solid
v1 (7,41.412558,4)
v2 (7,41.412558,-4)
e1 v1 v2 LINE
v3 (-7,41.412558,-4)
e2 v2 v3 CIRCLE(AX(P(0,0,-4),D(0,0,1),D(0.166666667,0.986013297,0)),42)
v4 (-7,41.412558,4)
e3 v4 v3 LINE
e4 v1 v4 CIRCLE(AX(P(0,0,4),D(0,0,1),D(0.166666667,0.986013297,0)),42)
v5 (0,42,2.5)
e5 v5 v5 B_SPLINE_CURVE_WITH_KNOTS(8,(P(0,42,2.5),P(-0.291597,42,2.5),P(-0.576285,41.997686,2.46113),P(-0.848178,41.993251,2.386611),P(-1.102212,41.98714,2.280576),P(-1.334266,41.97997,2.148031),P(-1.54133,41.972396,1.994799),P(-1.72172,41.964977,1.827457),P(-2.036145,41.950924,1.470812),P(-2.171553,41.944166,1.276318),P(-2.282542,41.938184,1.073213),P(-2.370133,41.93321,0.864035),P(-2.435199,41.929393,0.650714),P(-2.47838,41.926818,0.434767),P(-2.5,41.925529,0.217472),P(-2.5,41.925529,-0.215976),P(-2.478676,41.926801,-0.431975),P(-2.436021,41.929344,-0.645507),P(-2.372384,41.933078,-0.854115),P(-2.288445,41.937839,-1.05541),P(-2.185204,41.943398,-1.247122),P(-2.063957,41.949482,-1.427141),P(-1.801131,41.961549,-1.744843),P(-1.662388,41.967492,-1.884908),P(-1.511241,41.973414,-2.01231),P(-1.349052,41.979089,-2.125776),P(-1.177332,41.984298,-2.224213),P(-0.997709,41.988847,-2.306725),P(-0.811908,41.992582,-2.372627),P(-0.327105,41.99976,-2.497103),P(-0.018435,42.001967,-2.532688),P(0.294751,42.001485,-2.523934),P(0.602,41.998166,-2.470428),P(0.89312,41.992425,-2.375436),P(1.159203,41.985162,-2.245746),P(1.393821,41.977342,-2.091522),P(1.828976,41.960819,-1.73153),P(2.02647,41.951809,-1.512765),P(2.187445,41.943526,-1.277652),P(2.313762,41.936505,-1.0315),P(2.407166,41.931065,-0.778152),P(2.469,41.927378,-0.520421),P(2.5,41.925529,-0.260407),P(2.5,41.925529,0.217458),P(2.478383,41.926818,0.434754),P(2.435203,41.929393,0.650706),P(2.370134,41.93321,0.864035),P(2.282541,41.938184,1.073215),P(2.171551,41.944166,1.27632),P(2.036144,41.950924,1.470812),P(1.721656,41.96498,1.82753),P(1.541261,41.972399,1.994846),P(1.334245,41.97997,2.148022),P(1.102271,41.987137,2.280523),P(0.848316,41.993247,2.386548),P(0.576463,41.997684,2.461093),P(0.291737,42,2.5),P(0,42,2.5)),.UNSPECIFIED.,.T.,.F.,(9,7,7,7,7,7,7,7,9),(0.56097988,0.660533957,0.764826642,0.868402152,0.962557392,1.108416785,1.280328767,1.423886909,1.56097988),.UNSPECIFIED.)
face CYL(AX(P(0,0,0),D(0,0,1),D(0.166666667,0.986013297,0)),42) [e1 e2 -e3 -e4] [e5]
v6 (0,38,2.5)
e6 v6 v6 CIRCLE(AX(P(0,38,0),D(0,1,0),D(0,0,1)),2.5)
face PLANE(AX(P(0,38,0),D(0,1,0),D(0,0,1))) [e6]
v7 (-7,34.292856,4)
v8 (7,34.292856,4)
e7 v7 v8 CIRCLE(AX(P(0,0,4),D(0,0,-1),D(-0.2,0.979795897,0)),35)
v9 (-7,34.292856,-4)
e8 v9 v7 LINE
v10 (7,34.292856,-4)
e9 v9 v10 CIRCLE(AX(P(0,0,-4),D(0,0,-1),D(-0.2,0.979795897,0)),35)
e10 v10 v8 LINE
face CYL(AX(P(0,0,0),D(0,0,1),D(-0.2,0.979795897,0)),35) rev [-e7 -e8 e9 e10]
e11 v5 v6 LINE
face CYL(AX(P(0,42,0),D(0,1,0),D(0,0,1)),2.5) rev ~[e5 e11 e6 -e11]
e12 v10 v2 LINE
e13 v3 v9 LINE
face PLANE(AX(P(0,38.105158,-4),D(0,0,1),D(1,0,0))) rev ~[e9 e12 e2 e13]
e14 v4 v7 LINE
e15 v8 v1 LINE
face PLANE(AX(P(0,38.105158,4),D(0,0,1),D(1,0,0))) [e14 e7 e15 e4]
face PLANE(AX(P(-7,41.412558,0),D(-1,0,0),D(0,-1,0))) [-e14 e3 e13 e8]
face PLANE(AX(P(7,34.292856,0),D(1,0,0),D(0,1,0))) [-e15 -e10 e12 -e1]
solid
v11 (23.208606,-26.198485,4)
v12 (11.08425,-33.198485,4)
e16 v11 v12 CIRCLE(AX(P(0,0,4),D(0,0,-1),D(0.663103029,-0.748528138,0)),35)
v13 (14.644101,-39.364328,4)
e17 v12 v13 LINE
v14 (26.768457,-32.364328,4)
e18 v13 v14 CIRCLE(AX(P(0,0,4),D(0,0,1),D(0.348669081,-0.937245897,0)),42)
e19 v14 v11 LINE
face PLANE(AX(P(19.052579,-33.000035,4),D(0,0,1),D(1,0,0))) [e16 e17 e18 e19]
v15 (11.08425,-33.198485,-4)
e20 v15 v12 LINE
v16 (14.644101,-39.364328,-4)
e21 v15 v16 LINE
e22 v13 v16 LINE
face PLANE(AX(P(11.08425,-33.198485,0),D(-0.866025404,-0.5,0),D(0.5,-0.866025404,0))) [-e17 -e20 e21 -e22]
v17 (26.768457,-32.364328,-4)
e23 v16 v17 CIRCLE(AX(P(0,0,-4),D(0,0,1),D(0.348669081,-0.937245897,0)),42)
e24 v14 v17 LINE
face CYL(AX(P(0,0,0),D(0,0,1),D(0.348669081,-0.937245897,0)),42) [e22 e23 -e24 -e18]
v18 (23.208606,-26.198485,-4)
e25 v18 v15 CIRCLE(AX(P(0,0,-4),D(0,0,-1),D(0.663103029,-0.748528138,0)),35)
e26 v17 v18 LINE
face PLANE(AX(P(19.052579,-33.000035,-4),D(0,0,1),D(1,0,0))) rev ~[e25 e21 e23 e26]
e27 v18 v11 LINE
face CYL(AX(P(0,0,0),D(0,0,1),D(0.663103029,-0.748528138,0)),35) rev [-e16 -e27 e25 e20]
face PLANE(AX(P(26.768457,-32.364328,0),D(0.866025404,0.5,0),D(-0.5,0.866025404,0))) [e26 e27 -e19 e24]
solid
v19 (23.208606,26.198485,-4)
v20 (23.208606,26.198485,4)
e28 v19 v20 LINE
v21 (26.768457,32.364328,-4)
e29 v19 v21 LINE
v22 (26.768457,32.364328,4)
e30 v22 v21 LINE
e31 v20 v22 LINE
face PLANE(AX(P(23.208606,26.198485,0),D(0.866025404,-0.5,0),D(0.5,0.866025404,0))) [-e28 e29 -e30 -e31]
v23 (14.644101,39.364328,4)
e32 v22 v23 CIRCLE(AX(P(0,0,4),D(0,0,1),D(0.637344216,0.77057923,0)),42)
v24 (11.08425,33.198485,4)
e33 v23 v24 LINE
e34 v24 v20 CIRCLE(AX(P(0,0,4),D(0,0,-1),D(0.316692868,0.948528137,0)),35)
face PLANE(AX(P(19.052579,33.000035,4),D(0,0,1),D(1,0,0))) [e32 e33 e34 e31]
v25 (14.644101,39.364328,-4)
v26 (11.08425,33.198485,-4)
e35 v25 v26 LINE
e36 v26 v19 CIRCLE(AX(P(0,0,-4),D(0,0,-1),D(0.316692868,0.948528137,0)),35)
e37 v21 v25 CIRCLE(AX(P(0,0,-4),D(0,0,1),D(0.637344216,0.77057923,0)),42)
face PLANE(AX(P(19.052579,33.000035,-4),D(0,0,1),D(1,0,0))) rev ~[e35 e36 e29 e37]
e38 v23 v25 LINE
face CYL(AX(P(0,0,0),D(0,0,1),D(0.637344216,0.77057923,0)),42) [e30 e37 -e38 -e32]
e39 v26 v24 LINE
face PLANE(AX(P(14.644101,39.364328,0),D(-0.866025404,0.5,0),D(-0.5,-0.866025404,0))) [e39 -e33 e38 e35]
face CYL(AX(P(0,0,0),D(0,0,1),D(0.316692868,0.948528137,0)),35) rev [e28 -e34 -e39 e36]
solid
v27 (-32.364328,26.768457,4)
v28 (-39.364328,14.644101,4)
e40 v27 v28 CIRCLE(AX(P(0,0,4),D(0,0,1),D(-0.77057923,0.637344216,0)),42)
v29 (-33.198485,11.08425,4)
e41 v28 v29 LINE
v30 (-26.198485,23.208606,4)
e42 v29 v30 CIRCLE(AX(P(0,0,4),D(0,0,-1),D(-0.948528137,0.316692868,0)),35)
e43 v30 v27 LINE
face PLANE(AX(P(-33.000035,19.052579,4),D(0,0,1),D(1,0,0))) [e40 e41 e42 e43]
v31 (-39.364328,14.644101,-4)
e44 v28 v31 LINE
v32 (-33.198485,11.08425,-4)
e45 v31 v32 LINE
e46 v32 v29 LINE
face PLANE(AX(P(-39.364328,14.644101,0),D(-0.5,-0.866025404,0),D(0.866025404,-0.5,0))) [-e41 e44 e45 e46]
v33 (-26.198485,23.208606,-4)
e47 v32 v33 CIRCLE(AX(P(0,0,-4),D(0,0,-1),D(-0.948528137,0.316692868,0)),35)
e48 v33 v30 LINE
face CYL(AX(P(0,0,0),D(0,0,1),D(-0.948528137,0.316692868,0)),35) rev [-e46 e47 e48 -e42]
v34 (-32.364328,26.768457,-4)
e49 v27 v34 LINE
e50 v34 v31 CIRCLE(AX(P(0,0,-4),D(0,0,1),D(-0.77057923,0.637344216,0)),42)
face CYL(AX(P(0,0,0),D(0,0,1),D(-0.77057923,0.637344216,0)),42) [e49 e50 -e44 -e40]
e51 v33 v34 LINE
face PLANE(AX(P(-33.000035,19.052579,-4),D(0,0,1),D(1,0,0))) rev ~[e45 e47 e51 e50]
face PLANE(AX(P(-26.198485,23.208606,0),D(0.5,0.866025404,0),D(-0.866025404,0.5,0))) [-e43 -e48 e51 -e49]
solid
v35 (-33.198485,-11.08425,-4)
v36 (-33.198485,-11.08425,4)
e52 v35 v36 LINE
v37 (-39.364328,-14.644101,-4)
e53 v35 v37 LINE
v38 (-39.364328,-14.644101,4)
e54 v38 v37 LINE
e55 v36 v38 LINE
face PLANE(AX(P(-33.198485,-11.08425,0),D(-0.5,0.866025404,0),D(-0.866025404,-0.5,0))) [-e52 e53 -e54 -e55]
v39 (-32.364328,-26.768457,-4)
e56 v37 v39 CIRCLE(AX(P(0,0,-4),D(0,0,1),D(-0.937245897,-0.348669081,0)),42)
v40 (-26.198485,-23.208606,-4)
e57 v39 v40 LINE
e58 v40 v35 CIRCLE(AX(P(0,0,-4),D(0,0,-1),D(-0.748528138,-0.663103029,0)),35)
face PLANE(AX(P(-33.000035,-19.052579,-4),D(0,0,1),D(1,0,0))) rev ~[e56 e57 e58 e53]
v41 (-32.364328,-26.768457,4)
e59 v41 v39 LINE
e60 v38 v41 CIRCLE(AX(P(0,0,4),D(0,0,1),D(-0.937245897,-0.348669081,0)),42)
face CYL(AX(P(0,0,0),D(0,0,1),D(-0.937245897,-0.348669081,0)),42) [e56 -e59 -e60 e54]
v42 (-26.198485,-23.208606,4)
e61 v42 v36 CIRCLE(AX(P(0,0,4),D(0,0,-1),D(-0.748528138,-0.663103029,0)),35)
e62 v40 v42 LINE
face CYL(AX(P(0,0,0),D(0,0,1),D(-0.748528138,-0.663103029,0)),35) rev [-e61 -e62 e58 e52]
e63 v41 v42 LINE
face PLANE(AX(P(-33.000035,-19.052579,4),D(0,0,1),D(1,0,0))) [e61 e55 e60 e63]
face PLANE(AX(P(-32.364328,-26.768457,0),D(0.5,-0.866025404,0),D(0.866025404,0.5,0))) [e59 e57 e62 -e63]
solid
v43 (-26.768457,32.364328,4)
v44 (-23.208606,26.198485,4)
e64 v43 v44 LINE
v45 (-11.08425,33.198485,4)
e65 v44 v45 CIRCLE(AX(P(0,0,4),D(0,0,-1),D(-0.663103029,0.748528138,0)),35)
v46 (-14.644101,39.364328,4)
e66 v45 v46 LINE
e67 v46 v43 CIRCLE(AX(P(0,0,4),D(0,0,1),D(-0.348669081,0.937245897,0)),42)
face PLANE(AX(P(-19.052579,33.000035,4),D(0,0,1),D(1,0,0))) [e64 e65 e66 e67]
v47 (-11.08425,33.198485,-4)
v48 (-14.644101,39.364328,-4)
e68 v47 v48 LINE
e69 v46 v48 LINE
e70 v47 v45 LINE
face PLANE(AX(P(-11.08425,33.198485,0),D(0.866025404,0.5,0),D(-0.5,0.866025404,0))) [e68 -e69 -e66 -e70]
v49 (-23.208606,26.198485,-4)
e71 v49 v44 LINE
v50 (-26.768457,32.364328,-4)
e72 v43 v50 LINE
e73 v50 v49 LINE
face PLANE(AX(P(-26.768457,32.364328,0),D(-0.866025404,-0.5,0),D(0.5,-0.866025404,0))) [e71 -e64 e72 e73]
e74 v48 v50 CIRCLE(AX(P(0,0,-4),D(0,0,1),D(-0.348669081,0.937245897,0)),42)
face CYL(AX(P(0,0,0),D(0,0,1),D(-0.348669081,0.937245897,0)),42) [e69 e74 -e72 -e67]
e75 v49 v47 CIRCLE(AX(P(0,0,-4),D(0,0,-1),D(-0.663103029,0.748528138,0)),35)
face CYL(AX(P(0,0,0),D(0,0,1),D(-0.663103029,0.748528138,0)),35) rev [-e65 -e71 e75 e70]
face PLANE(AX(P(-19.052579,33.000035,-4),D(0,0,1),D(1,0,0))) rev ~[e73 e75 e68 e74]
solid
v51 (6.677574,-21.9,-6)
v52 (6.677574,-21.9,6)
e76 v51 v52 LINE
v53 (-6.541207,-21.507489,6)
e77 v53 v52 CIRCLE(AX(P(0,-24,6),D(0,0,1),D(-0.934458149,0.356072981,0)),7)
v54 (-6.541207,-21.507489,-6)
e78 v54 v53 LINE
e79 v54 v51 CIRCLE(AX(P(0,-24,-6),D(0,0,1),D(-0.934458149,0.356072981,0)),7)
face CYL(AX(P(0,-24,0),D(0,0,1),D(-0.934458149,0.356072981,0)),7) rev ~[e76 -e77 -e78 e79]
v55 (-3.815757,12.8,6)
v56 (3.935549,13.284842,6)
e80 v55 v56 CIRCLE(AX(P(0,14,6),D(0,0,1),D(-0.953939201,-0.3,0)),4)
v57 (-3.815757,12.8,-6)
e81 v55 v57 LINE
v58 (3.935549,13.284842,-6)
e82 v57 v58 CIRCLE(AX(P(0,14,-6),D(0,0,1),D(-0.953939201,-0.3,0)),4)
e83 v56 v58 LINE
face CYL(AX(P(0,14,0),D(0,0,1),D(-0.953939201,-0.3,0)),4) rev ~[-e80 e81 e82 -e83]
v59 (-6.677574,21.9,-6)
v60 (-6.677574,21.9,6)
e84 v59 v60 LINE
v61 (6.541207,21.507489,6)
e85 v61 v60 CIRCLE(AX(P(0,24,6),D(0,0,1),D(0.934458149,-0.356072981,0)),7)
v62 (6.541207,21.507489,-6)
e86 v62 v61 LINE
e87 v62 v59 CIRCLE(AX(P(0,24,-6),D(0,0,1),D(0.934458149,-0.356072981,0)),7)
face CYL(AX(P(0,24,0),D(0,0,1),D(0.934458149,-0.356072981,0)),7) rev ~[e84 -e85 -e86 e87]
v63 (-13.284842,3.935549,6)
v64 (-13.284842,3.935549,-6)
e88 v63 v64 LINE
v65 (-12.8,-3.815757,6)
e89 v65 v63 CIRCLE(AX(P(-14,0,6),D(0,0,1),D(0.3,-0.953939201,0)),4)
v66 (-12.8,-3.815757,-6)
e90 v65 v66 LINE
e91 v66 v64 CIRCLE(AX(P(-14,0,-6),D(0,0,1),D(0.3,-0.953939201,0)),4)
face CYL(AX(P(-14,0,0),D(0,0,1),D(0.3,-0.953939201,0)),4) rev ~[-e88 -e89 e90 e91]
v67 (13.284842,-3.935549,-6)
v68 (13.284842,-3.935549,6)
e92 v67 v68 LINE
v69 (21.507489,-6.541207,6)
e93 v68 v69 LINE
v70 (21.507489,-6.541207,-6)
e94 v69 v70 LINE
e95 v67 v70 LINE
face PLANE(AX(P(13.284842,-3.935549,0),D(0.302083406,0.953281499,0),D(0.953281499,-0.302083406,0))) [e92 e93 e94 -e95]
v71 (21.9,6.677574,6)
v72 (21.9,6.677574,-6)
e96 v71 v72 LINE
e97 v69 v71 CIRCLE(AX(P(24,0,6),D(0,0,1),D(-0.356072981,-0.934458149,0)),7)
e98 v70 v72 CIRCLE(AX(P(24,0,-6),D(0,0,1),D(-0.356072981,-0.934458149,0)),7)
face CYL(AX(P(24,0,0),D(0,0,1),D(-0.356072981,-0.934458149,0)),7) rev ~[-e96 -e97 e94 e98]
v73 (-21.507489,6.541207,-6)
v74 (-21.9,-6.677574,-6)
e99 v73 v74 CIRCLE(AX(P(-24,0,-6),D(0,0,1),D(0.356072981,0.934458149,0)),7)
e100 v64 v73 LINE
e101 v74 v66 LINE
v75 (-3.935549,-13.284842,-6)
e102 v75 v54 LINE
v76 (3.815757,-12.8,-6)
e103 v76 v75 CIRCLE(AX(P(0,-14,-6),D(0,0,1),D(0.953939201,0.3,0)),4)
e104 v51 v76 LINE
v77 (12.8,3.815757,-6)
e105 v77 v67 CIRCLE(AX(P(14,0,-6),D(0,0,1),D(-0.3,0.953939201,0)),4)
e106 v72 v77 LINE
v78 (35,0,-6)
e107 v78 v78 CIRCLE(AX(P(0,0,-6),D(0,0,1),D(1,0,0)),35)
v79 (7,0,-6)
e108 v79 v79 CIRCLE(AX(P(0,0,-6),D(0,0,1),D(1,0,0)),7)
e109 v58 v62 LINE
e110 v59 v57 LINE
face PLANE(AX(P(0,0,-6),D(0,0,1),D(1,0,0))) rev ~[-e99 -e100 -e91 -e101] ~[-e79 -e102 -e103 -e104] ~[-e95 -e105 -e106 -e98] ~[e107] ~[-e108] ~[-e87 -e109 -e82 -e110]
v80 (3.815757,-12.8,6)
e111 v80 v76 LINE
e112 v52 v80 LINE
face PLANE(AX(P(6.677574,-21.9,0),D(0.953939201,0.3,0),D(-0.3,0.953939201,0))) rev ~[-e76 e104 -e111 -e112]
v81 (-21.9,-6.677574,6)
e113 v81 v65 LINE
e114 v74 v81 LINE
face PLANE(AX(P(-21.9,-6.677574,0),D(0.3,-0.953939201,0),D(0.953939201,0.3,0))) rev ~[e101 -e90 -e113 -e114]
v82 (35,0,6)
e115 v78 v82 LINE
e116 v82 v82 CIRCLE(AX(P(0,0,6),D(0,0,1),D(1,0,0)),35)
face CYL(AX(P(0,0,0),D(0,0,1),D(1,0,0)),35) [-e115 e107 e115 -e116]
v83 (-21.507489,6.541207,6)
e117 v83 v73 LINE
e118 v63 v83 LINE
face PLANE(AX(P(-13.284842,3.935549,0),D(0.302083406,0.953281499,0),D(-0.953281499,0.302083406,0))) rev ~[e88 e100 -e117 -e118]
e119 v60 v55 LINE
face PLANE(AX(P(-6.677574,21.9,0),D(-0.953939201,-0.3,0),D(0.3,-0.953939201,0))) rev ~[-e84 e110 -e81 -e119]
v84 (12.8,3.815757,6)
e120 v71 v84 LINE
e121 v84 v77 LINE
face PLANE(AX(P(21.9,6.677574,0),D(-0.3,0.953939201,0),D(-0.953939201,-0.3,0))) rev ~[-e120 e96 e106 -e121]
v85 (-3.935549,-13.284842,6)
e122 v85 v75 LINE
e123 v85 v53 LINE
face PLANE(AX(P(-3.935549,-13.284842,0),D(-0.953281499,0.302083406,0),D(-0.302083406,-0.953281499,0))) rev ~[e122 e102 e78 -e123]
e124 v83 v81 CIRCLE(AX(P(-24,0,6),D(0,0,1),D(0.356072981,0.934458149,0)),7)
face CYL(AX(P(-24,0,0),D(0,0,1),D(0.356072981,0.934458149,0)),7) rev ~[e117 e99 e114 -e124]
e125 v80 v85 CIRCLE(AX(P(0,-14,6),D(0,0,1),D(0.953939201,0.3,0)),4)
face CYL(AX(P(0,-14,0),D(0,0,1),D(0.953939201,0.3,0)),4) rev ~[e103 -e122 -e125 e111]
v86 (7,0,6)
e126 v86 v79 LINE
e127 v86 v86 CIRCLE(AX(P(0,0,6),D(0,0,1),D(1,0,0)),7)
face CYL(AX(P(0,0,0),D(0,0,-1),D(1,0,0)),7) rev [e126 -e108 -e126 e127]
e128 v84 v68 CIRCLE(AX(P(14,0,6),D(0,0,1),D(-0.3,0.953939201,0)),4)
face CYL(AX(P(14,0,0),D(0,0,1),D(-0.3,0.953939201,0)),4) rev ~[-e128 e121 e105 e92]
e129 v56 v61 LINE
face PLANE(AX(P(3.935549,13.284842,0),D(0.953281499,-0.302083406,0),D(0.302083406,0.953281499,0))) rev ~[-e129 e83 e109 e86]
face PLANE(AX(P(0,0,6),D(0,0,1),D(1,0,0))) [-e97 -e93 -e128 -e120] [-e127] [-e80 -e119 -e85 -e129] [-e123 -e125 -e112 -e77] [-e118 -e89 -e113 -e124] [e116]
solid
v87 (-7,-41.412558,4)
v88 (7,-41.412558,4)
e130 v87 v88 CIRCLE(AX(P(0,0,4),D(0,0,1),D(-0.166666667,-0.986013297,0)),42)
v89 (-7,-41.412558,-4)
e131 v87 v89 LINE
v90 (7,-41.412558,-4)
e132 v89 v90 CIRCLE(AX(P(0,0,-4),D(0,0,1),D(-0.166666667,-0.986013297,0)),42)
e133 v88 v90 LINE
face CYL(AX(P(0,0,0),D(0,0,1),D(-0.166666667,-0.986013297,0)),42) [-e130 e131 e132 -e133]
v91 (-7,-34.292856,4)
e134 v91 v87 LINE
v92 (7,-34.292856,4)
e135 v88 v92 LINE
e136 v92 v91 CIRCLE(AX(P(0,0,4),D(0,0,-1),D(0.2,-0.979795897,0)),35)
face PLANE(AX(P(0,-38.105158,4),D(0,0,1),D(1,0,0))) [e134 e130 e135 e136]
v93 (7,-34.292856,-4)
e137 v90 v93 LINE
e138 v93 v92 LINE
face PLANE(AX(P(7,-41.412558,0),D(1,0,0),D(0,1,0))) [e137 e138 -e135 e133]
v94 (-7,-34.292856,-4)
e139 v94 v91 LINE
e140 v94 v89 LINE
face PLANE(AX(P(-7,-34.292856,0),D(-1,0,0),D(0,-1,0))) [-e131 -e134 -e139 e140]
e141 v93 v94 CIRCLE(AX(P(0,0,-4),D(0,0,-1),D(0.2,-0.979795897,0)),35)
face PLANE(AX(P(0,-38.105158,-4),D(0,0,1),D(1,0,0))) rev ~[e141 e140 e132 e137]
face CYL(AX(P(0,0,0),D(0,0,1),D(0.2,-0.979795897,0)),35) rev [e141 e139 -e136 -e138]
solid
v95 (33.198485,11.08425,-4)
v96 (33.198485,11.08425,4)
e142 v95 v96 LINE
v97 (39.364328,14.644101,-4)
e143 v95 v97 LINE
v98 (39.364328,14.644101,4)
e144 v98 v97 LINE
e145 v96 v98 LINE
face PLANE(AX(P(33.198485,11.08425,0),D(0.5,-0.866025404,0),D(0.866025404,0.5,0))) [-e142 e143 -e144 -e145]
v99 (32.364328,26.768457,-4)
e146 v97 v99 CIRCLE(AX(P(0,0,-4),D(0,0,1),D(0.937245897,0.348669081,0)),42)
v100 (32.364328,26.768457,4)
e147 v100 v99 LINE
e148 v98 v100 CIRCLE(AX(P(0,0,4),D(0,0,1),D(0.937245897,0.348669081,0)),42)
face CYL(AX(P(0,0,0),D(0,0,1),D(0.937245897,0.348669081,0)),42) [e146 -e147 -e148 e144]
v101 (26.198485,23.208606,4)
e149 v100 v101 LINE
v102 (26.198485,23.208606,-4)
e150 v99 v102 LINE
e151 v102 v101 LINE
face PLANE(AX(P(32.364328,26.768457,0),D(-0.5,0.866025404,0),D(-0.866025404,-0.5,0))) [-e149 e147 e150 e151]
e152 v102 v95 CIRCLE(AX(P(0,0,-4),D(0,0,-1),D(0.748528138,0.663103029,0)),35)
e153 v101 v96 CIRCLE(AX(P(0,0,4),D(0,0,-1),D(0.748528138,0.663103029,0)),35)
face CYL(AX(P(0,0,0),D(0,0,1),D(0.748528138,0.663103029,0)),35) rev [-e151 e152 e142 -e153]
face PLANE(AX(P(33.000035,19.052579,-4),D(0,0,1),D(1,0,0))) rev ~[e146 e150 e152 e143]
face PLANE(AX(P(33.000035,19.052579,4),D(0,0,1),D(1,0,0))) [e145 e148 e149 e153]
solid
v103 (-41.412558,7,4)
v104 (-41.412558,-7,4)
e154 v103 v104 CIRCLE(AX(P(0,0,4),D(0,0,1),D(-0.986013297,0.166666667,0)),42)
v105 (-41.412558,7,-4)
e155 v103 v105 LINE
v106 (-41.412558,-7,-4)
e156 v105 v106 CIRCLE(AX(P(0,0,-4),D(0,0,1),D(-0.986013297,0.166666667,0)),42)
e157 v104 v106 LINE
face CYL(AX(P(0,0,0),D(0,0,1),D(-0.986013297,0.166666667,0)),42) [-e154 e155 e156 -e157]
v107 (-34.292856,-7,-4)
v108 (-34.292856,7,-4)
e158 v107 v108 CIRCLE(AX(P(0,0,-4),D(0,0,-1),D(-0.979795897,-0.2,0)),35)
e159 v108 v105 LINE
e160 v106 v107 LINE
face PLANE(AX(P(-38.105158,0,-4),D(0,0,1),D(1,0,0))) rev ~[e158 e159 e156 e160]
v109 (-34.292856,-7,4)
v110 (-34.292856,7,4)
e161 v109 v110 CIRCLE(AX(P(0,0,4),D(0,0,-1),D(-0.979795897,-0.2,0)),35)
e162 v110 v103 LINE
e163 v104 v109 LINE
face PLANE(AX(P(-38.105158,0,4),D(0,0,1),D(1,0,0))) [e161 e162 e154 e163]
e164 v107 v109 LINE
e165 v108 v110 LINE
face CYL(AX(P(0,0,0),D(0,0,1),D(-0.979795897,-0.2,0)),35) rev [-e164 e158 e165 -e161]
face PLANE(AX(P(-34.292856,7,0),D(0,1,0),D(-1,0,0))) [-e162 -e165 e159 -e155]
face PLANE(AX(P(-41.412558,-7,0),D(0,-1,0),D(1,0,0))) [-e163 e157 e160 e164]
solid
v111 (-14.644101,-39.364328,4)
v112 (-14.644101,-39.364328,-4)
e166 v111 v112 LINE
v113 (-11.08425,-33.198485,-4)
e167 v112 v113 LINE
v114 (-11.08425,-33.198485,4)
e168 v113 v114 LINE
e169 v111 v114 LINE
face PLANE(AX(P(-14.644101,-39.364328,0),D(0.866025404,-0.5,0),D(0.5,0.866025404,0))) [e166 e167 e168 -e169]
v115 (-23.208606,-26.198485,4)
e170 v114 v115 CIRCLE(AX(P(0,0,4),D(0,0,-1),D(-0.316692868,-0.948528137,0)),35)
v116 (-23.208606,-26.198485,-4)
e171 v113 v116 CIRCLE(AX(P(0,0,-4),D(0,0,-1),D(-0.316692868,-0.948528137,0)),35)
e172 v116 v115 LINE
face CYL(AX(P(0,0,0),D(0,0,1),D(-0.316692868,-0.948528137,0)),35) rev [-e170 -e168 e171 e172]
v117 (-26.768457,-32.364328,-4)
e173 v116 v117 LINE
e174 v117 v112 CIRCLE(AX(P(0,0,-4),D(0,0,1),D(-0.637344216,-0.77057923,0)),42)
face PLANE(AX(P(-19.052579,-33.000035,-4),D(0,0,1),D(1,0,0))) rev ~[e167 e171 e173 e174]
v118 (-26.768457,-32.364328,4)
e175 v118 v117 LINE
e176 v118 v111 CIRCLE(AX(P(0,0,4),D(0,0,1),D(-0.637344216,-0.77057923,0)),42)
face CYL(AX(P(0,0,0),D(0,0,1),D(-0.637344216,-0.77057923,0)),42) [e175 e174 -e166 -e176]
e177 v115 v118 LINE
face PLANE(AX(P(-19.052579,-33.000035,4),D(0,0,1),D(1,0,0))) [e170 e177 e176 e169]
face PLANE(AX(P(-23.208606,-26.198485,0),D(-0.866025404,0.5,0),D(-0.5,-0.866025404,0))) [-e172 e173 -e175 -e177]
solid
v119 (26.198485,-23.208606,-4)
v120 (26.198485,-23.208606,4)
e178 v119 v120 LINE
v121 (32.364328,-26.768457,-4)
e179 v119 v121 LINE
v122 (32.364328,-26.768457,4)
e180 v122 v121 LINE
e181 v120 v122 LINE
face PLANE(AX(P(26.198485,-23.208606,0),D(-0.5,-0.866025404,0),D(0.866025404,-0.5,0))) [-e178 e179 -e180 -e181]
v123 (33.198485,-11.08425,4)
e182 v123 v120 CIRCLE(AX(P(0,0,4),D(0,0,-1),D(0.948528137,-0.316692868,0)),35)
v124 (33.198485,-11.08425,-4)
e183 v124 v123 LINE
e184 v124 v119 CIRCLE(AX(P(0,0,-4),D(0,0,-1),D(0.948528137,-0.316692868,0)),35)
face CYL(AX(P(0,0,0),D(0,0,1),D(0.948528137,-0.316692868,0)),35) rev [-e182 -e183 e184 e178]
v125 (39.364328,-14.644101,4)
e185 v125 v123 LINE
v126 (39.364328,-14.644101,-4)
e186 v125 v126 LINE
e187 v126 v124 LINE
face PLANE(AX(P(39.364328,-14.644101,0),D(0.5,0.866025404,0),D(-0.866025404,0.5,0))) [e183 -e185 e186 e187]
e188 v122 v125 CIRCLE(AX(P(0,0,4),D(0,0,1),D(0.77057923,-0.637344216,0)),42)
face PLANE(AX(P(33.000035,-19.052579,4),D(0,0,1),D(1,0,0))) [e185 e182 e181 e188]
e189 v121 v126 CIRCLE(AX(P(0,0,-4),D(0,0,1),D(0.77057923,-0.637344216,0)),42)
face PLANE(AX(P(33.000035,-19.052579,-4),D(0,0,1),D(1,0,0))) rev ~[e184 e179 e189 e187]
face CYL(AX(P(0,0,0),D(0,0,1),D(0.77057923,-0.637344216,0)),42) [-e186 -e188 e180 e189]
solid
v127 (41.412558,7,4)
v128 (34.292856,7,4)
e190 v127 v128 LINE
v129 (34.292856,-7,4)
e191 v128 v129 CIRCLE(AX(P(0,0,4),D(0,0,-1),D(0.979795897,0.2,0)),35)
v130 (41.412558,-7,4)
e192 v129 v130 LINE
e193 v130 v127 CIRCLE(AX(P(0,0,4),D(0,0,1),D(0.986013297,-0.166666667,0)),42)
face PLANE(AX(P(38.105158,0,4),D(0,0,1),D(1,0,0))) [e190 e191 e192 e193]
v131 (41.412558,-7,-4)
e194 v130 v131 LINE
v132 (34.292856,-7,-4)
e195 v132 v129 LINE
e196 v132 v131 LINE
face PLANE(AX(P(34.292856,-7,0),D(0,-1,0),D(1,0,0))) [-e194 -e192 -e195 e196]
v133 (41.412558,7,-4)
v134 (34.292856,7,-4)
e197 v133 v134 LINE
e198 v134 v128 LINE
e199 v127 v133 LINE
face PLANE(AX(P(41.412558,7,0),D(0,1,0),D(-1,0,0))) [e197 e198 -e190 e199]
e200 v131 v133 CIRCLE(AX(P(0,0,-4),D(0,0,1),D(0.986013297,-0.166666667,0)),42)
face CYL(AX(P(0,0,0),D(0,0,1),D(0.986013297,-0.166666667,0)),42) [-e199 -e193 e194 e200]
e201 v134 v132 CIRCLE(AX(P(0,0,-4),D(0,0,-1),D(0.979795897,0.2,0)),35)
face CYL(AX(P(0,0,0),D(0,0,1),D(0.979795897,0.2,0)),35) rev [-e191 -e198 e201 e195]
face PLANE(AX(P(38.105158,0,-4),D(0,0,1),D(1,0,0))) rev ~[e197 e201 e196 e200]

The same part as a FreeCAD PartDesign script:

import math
import FreeCAD as App
import Part
import Sketcher
from FreeCAD import Vector
Q = App.Units.Quantity

doc = App.newDocument("Part")
params = doc.addObject("Spreadsheet::Sheet", "Params")
for row, (alias, value) in enumerate([
    ("sketch1_diameter", "70 mm"),
    ("sketch1_diameter2", "14 mm"),
    ("sketch1_radius", "4 mm"),
    ("pad1_length", "12 mm"),
    ("sketch2_radius", "35 mm"),
    ("sketch2_radius2", "42 mm"),
    ("pad2_length", "8 mm"),
    ("sketch3_diameter", "5 mm"),
    ("pocket1_length", "4 mm"),
    ("sketch4_radius", "35 mm"),
    ("sketch4_radius2", "42 mm"),
    ("pad3_length", "8 mm"),
    ("sketch5_radius", "35 mm"),
    ("sketch5_radius2", "42 mm"),
    ("pad4_length", "8 mm"),
    ("sketch6_radius", "35 mm"),
    ("sketch6_radius2", "42 mm"),
    ("pad5_length", "8 mm"),
    ("sketch7_radius", "35 mm"),
    ("sketch7_radius2", "42 mm"),
    ("pad6_length", "8 mm"),
    ("sketch8_radius", "35 mm"),
    ("sketch8_radius2", "42 mm"),
    ("pad7_length", "8 mm"),
    ("sketch9_radius", "35 mm"),
    ("sketch9_radius2", "42 mm"),
    ("pad8_length", "8 mm"),
    ("sketch10_radius", "35 mm"),
    ("sketch10_radius2", "42 mm"),
    ("pad9_length", "8 mm"),
    ("sketch11_radius", "35 mm"),
    ("sketch11_radius2", "42 mm"),
    ("pad10_length", "8 mm"),
    ("sketch12_radius", "35 mm"),
    ("sketch12_radius2", "42 mm"),
    ("pad11_length", "8 mm"),
    ("sketch13_radius", "35 mm"),
    ("sketch13_radius2", "42 mm"),
    ("pad12_length", "8 mm"),
    ("sketch14_radius", "35 mm"),
    ("sketch14_radius2", "42 mm"),
    ("pad13_length", "8 mm"),
], start=1):
    params.set(f"A{row}", alias)
    params.set(f"B{row}", "=" + value)
    params.setAlias(f"B{row}", alias)

body = doc.addObject("PartDesign::Body", "Body")

sketch1 = body.newObject("Sketcher::SketchObject", "Sketch")
sketch1.AttachmentSupport = (doc.getObject("XY_Plane"), [""])
sketch1.MapMode = "FlatFace"
sketch1.addGeometry([
    Part.Circle(Vector(0, 0, 0), Vector(0, 0, 1), 35),
    Part.LineSegment(Vector(-12.8, -3.8, 0), Vector(-21.9, -6.7, 0)),
    Part.ArcOfCircle(Part.Circle(Vector(-24, 0, 0), Vector(0, 0, 1), 7), math.radians(69), math.radians(287)),
    Part.LineSegment(Vector(-21.5, 6.5, 0), Vector(-13.3, 3.9, 0)),
    Part.ArcOfCircle(Part.Circle(Vector(-14, 0, 0), Vector(0, 0, 1), 4), math.radians(-73), math.radians(80)),
    Part.LineSegment(Vector(3.8, -12.8, 0), Vector(6.7, -21.9, 0)),
    Part.ArcOfCircle(Part.Circle(Vector(0, -24, 0), Vector(0, 0, 1), 7), math.radians(159), math.radians(377)),
    Part.LineSegment(Vector(-6.5, -21.5, 0), Vector(-3.9, -13.3, 0)),
    Part.ArcOfCircle(Part.Circle(Vector(0, -14, 0), Vector(0, 0, 1), 4), math.radians(17), math.radians(170)),
    Part.LineSegment(Vector(-3.8, 12.8, 0), Vector(-6.7, 21.9, 0)),
    Part.ArcOfCircle(Part.Circle(Vector(0, 24, 0), Vector(0, 0, 1), 7), math.radians(-21), math.radians(197)),
    Part.LineSegment(Vector(6.5, 21.5, 0), Vector(3.9, 13.3, 0)),
    Part.ArcOfCircle(Part.Circle(Vector(0, 14, 0), Vector(0, 0, 1), 4), math.radians(-163), math.radians(-10)),
    Part.Circle(Vector(0, 0, 0), Vector(0, 0, 1), 7),
    Part.LineSegment(Vector(12.8, 3.8, 0), Vector(21.9, 6.7, 0)),
    Part.ArcOfCircle(Part.Circle(Vector(24, 0, 0), Vector(0, 0, 1), 7), math.radians(-111), math.radians(107)),
    Part.LineSegment(Vector(21.5, -6.5, 0), Vector(13.3, -3.9, 0)),
    Part.ArcOfCircle(Part.Circle(Vector(14, 0, 0), Vector(0, 0, 1), 4), math.radians(107), math.radians(260)),
], False)
sketch1.addConstraint([
    Sketcher.Constraint("Tangent", 1, 2, 2, 2),
    Sketcher.Constraint("Coincident", 2, 1, 3, 1),
    Sketcher.Constraint("Coincident", 3, 2, 4, 2),
    Sketcher.Constraint("Tangent", 4, 1, 1, 1),
    Sketcher.Constraint("Tangent", 5, 2, 6, 2),
    Sketcher.Constraint("Coincident", 6, 1, 7, 1),
    Sketcher.Constraint("Coincident", 7, 2, 8, 2),
    Sketcher.Constraint("Tangent", 8, 1, 5, 1),
    Sketcher.Constraint("Tangent", 9, 2, 10, 2),
    Sketcher.Constraint("Coincident", 10, 1, 11, 1),
    Sketcher.Constraint("Coincident", 11, 2, 12, 2),
    Sketcher.Constraint("Tangent", 12, 1, 9, 1),
    Sketcher.Constraint("Tangent", 14, 2, 15, 2),
    Sketcher.Constraint("Coincident", 15, 1, 16, 1),
    Sketcher.Constraint("Coincident", 16, 2, 17, 2),
    Sketcher.Constraint("Tangent", 17, 1, 14, 1),
    Sketcher.Constraint("Coincident", 0, 3, -1, 1),
    Sketcher.Constraint("Coincident", 13, 3, -1, 1),
    Sketcher.Constraint("Equal", 2, 6),
    Sketcher.Constraint("Equal", 4, 8),
    Sketcher.Constraint("Equal", 6, 10),
    Sketcher.Constraint("Equal", 8, 12),
    Sketcher.Constraint("Equal", 10, 13),
    Sketcher.Constraint("Equal", 13, 15),
    Sketcher.Constraint("Equal", 12, 17),
    Sketcher.Constraint("Symmetric", 6, 3, 10, 3, -1, 1),
    Sketcher.Constraint("Symmetric", 8, 3, 12, 3, -1, 1),
    Sketcher.Constraint("Symmetric", 2, 3, 15, 3, -1, 1),
    Sketcher.Constraint("Symmetric", 4, 3, 17, 3, -1, 1),
    Sketcher.Constraint("PointOnObject", 2, 3, -1),
    Sketcher.Constraint("PointOnObject", 4, 3, -1),
    Sketcher.Constraint("PointOnObject", 6, 3, -2),
    Sketcher.Constraint("PointOnObject", 8, 3, -2),
    Sketcher.Constraint("Perpendicular", 1, 5),
    Sketcher.Constraint("Perpendicular", 3, 7),
    Sketcher.Constraint("Parallel", 7, 11),
    Sketcher.Constraint("Perpendicular", 11, 16),
    Sketcher.Constraint("Equal", 3, 7),
    Sketcher.Constraint("Equal", 7, 11),
    Sketcher.Constraint("Equal", 11, 16),
    Sketcher.Constraint("Diameter", 0, Q("70 mm")),
    Sketcher.Constraint("Diameter", 13, Q("14 mm")),
    Sketcher.Constraint("Radius", 4, Q("4 mm")),
    Sketcher.Constraint("DistanceX", 2, 3, -1, 1, Q("24 mm")),
    Sketcher.Constraint("DistanceX", 4, 3, -1, 1, Q("14 mm")),
    Sketcher.Constraint("DistanceY", 6, 3, -1, 1, Q("24 mm")),
    Sketcher.Constraint("DistanceX", 2, 1, -1, 1, Q("21.507489 mm")),
    Sketcher.Constraint("DistanceY", -1, 1, 3, 2, Q("3.935549 mm")),
])
sketch1.setExpression("Constraints[40]", "Params.sketch1_diameter")
sketch1.setExpression("Constraints[41]", "Params.sketch1_diameter2")
sketch1.setExpression("Constraints[42]", "Params.sketch1_radius")
pad1 = body.newObject("PartDesign::Pad", "Pad")
pad1.Profile = sketch1
pad1.setExpression("Length", "Params.pad1_length")
pad1.Midplane = True
body2 = doc.addObject("PartDesign::Body", "Body001")

sketch2 = body2.newObject("Sketcher::SketchObject", "Sketch001")
sketch2.AttachmentSupport = (doc.getObject("XY_Plane001"), [""])
sketch2.MapMode = "FlatFace"
sketch2.addGeometry([
    Part.LineSegment(Vector(-7, 41, 0), Vector(-7, 34, 0)),
    Part.ArcOfCircle(Part.Circle(Vector(0, 0, 0), Vector(0, 0, 1), 35), math.radians(78), math.radians(102)),
    Part.LineSegment(Vector(7, 34, 0), Vector(7, 41, 0)),
    Part.ArcOfCircle(Part.Circle(Vector(0, 0, 0), Vector(0, 0, 1), 42), math.radians(80.41), math.radians(99.59)),
], False)
sketch2.addConstraint([
    Sketcher.Constraint("Coincident", 0, 2, 1, 2),
    Sketcher.Constraint("Coincident", 1, 1, 2, 1),
    Sketcher.Constraint("Coincident", 2, 2, 3, 1),
    Sketcher.Constraint("Coincident", 3, 2, 0, 1),
    Sketcher.Constraint("Vertical", 0),
    Sketcher.Constraint("Vertical", 2),
    Sketcher.Constraint("Coincident", 1, 3, -1, 1),
    Sketcher.Constraint("Coincident", 3, 3, -1, 1),
    Sketcher.Constraint("Horizontal", 0, 2, 1, 1),
    Sketcher.Constraint("Radius", 1, Q("35 mm")),
    Sketcher.Constraint("Radius", 3, Q("42 mm")),
    Sketcher.Constraint("DistanceX", 0, 2, -1, 1, Q("7 mm")),
])
sketch2.setExpression("Constraints[9]", "Params.sketch2_radius")
sketch2.setExpression("Constraints[10]", "Params.sketch2_radius2")
pad2 = body2.newObject("PartDesign::Pad", "Pad001")
pad2.Profile = sketch2
pad2.setExpression("Length", "Params.pad2_length")
pad2.Midplane = True

sketch3 = body2.newObject("Sketcher::SketchObject", "Sketch002")
sketch3.AttachmentSupport = (doc.getObject("XZ_Plane001"), [""])
sketch3.MapMode = "FlatFace"
sketch3.AttachmentOffset = App.Placement(Vector(0, 0, -42), App.Rotation())
sketch3.addGeometry(Part.Circle(Vector(0, 0, 0), Vector(0, 0, 1), 2.5), False)
sketch3.addConstraint([
    Sketcher.Constraint("Coincident", 0, 3, -1, 1),
    Sketcher.Constraint("Diameter", 0, Q("5 mm")),
])
sketch3.setExpression("Constraints[1]", "Params.sketch3_diameter")
pocket1 = body2.newObject("PartDesign::Pocket", "Pocket")
pocket1.Profile = sketch3
pocket1.setExpression("Length", "Params.pocket1_length")
pocket1.Reversed = True
body3 = doc.addObject("PartDesign::Body", "Body002")

sketch4 = body3.newObject("Sketcher::SketchObject", "Sketch003")
sketch4.AttachmentSupport = (doc.getObject("XY_Plane002"), [""])
sketch4.MapMode = "FlatFace"
sketch4.addGeometry([
    Part.LineSegment(Vector(15, 39, 0), Vector(11, 33, 0)),
    Part.ArcOfCircle(Part.Circle(Vector(0, 0, 0), Vector(0, 0, 1), 35), math.radians(48), math.radians(72)),
    Part.LineSegment(Vector(23, 26, 0), Vector(27, 32, 0)),
    Part.ArcOfCircle(Part.Circle(Vector(0, 0, 0), Vector(0, 0, 1), 42), math.radians(50.41), math.radians(69.59)),
], False)
sketch4.addConstraint([
    Sketcher.Constraint("Coincident", 0, 2, 1, 2),
    Sketcher.Constraint("Coincident", 1, 1, 2, 1),
    Sketcher.Constraint("Coincident", 2, 2, 3, 1),
    Sketcher.Constraint("Coincident", 3, 2, 0, 1),
    Sketcher.Constraint("Coincident", 1, 3, -1, 1),
    Sketcher.Constraint("Coincident", 3, 3, -1, 1),
    Sketcher.Constraint("Parallel", 0, 2),
    Sketcher.Constraint("Equal", 0, 2),
    Sketcher.Constraint("Radius", 1, Q("35 mm")),
    Sketcher.Constraint("Radius", 3, Q("42 mm")),
    Sketcher.Constraint("Angle", 0, Q("-120 deg")),
    Sketcher.Constraint("DistanceY", 1, 1, 0, 2, Q("7 mm")),
])
sketch4.setExpression("Constraints[8]", "Params.sketch4_radius")
sketch4.setExpression("Constraints[9]", "Params.sketch4_radius2")
pad3 = body3.newObject("PartDesign::Pad", "Pad002")
pad3.Profile = sketch4
pad3.setExpression("Length", "Params.pad3_length")
pad3.Midplane = True
body4 = doc.addObject("PartDesign::Body", "Body003")

sketch5 = body4.newObject("Sketcher::SketchObject", "Sketch004")
sketch5.AttachmentSupport = (doc.getObject("XY_Plane003"), [""])
sketch5.MapMode = "FlatFace"
sketch5.addGeometry([
    Part.LineSegment(Vector(32, 27, 0), Vector(26, 23, 0)),
    Part.ArcOfCircle(Part.Circle(Vector(0, 0, 0), Vector(0, 0, 1), 35), math.radians(18), math.radians(42)),
    Part.LineSegment(Vector(33, 11, 0), Vector(39, 15, 0)),
    Part.ArcOfCircle(Part.Circle(Vector(0, 0, 0), Vector(0, 0, 1), 42), math.radians(20.41), math.radians(39.59)),
], False)
sketch5.addConstraint([
    Sketcher.Constraint("Coincident", 0, 2, 1, 2),
    Sketcher.Constraint("Coincident", 1, 1, 2, 1),
    Sketcher.Constraint("Coincident", 2, 2, 3, 1),
    Sketcher.Constraint("Coincident", 3, 2, 0, 1),
    Sketcher.Constraint("Coincident", 1, 3, -1, 1),
    Sketcher.Constraint("Coincident", 3, 3, -1, 1),
    Sketcher.Constraint("Parallel", 0, 2),
    Sketcher.Constraint("Equal", 0, 2),
    Sketcher.Constraint("Radius", 1, Q("35 mm")),
    Sketcher.Constraint("Radius", 3, Q("42 mm")),
    Sketcher.Constraint("Angle", 0, Q("-150 deg")),
    Sketcher.Constraint("DistanceX", 0, 2, 1, 1, Q("7 mm")),
])
sketch5.setExpression("Constraints[8]", "Params.sketch5_radius")
sketch5.setExpression("Constraints[9]", "Params.sketch5_radius2")
pad4 = body4.newObject("PartDesign::Pad", "Pad003")
pad4.Profile = sketch5
pad4.setExpression("Length", "Params.pad4_length")
pad4.Midplane = True
body5 = doc.addObject("PartDesign::Body", "Body004")

sketch6 = body5.newObject("Sketcher::SketchObject", "Sketch005")
sketch6.AttachmentSupport = (doc.getObject("XY_Plane004"), [""])
sketch6.MapMode = "FlatFace"
sketch6.addGeometry([
    Part.LineSegment(Vector(41, 7, 0), Vector(34, 7, 0)),
    Part.ArcOfCircle(Part.Circle(Vector(0, 0, 0), Vector(0, 0, 1), 35), math.radians(-12), math.radians(12)),
    Part.LineSegment(Vector(34, -7, 0), Vector(41, -7, 0)),
    Part.ArcOfCircle(Part.Circle(Vector(0, 0, 0), Vector(0, 0, 1), 42), math.radians(-9.59), math.radians(9.59)),
], False)
sketch6.addConstraint([
    Sketcher.Constraint("Coincident", 0, 2, 1, 2),
    Sketcher.Constraint("Coincident", 1, 1, 2, 1),
    Sketcher.Constraint("Coincident", 2, 2, 3, 1),
    Sketcher.Constraint("Coincident", 3, 2, 0, 1),
    Sketcher.Constraint("Horizontal", 0),
    Sketcher.Constraint("Horizontal", 2),
    Sketcher.Constraint("Coincident", 1, 3, -1, 1),
    Sketcher.Constraint("Coincident", 3, 3, -1, 1),
    Sketcher.Constraint("Vertical", 0, 2, 1, 1),
    Sketcher.Constraint("Radius", 1, Q("35 mm")),
    Sketcher.Constraint("Radius", 3, Q("42 mm")),
    Sketcher.Constraint("DistanceY", -1, 1, 0, 2, Q("7 mm")),
])
sketch6.setExpression("Constraints[9]", "Params.sketch6_radius")
sketch6.setExpression("Constraints[10]", "Params.sketch6_radius2")
pad5 = body5.newObject("PartDesign::Pad", "Pad004")
pad5.Profile = sketch6
pad5.setExpression("Length", "Params.pad5_length")
pad5.Midplane = True
body6 = doc.addObject("PartDesign::Body", "Body005")

sketch7 = body6.newObject("Sketcher::SketchObject", "Sketch006")
sketch7.AttachmentSupport = (doc.getObject("XY_Plane005"), [""])
sketch7.MapMode = "FlatFace"
sketch7.addGeometry([
    Part.LineSegment(Vector(39, -15, 0), Vector(33, -11, 0)),
    Part.ArcOfCircle(Part.Circle(Vector(0, 0, 0), Vector(0, 0, 1), 35), math.radians(-42), math.radians(-18)),
    Part.LineSegment(Vector(26, -23, 0), Vector(32, -27, 0)),
    Part.ArcOfCircle(Part.Circle(Vector(0, 0, 0), Vector(0, 0, 1), 42), math.radians(-39.59), math.radians(-20.41)),
], False)
sketch7.addConstraint([
    Sketcher.Constraint("Coincident", 0, 2, 1, 2),
    Sketcher.Constraint("Coincident", 1, 1, 2, 1),
    Sketcher.Constraint("Coincident", 2, 2, 3, 1),
    Sketcher.Constraint("Coincident", 3, 2, 0, 1),
    Sketcher.Constraint("Coincident", 1, 3, -1, 1),
    Sketcher.Constraint("Coincident", 3, 3, -1, 1),
    Sketcher.Constraint("Parallel", 0, 2),
    Sketcher.Constraint("Equal", 0, 2),
    Sketcher.Constraint("Radius", 1, Q("35 mm")),
    Sketcher.Constraint("Radius", 3, Q("42 mm")),
    Sketcher.Constraint("Angle", 0, Q("150 deg")),
    Sketcher.Constraint("DistanceX", 1, 1, 0, 2, Q("7 mm")),
])
sketch7.setExpression("Constraints[8]", "Params.sketch7_radius")
sketch7.setExpression("Constraints[9]", "Params.sketch7_radius2")
pad6 = body6.newObject("PartDesign::Pad", "Pad005")
pad6.Profile = sketch7
pad6.setExpression("Length", "Params.pad6_length")
pad6.Midplane = True
body7 = doc.addObject("PartDesign::Body", "Body006")

sketch8 = body7.newObject("Sketcher::SketchObject", "Sketch007")
sketch8.AttachmentSupport = (doc.getObject("XY_Plane006"), [""])
sketch8.MapMode = "FlatFace"
sketch8.addGeometry([
    Part.LineSegment(Vector(27, -32, 0), Vector(23, -26, 0)),
    Part.ArcOfCircle(Part.Circle(Vector(0, 0, 0), Vector(0, 0, 1), 35), math.radians(-72), math.radians(-48)),
    Part.LineSegment(Vector(11, -33, 0), Vector(15, -39, 0)),
    Part.ArcOfCircle(Part.Circle(Vector(0, 0, 0), Vector(0, 0, 1), 42), math.radians(-69.59), math.radians(-50.41)),
], False)
sketch8.addConstraint([
    Sketcher.Constraint("Coincident", 0, 2, 1, 2),
    Sketcher.Constraint("Coincident", 1, 1, 2, 1),
    Sketcher.Constraint("Coincident", 2, 2, 3, 1),
    Sketcher.Constraint("Coincident", 3, 2, 0, 1),
    Sketcher.Constraint("Coincident", 1, 3, -1, 1),
    Sketcher.Constraint("Coincident", 3, 3, -1, 1),
    Sketcher.Constraint("Parallel", 0, 2),
    Sketcher.Constraint("Equal", 0, 2),
    Sketcher.Constraint("Radius", 1, Q("35 mm")),
    Sketcher.Constraint("Radius", 3, Q("42 mm")),
    Sketcher.Constraint("Angle", 0, Q("120 deg")),
    Sketcher.Constraint("DistanceY", 1, 1, 0, 2, Q("7 mm")),
])
sketch8.setExpression("Constraints[8]", "Params.sketch8_radius")
sketch8.setExpression("Constraints[9]", "Params.sketch8_radius2")
pad7 = body7.newObject("PartDesign::Pad", "Pad006")
pad7.Profile = sketch8
pad7.setExpression("Length", "Params.pad7_length")
pad7.Midplane = True
body8 = doc.addObject("PartDesign::Body", "Body007")

sketch9 = body8.newObject("Sketcher::SketchObject", "Sketch008")
sketch9.AttachmentSupport = (doc.getObject("XY_Plane007"), [""])
sketch9.MapMode = "FlatFace"
sketch9.addGeometry([
    Part.LineSegment(Vector(7, -41, 0), Vector(7, -34, 0)),
    Part.ArcOfCircle(Part.Circle(Vector(0, 0, 0), Vector(0, 0, 1), 35), math.radians(-102), math.radians(-78)),
    Part.LineSegment(Vector(-7, -34, 0), Vector(-7, -41, 0)),
    Part.ArcOfCircle(Part.Circle(Vector(0, 0, 0), Vector(0, 0, 1), 42), math.radians(-99.59), math.radians(-80.41)),
], False)
sketch9.addConstraint([
    Sketcher.Constraint("Coincident", 0, 2, 1, 2),
    Sketcher.Constraint("Coincident", 1, 1, 2, 1),
    Sketcher.Constraint("Coincident", 2, 2, 3, 1),
    Sketcher.Constraint("Coincident", 3, 2, 0, 1),
    Sketcher.Constraint("Vertical", 0),
    Sketcher.Constraint("Vertical", 2),
    Sketcher.Constraint("Coincident", 1, 3, -1, 1),
    Sketcher.Constraint("Coincident", 3, 3, -1, 1),
    Sketcher.Constraint("Horizontal", 0, 2, 1, 1),
    Sketcher.Constraint("Radius", 1, Q("35 mm")),
    Sketcher.Constraint("Radius", 3, Q("42 mm")),
    Sketcher.Constraint("DistanceX", -1, 1, 0, 2, Q("7 mm")),
])
sketch9.setExpression("Constraints[9]", "Params.sketch9_radius")
sketch9.setExpression("Constraints[10]", "Params.sketch9_radius2")
pad8 = body8.newObject("PartDesign::Pad", "Pad007")
pad8.Profile = sketch9
pad8.setExpression("Length", "Params.pad8_length")
pad8.Midplane = True
body9 = doc.addObject("PartDesign::Body", "Body008")

sketch10 = body9.newObject("Sketcher::SketchObject", "Sketch009")
sketch10.AttachmentSupport = (doc.getObject("XY_Plane008"), [""])
sketch10.MapMode = "FlatFace"
sketch10.addGeometry([
    Part.LineSegment(Vector(-15, -39, 0), Vector(-11, -33, 0)),
    Part.ArcOfCircle(Part.Circle(Vector(0, 0, 0), Vector(0, 0, 1), 35), math.radians(-132), math.radians(-108)),
    Part.LineSegment(Vector(-23, -26, 0), Vector(-27, -32, 0)),
    Part.ArcOfCircle(Part.Circle(Vector(0, 0, 0), Vector(0, 0, 1), 42), math.radians(-129.59), math.radians(-110.41)),
], False)
sketch10.addConstraint([
    Sketcher.Constraint("Coincident", 0, 2, 1, 2),
    Sketcher.Constraint("Coincident", 1, 1, 2, 1),
    Sketcher.Constraint("Coincident", 2, 2, 3, 1),
    Sketcher.Constraint("Coincident", 3, 2, 0, 1),
    Sketcher.Constraint("Coincident", 1, 3, -1, 1),
    Sketcher.Constraint("Coincident", 3, 3, -1, 1),
    Sketcher.Constraint("Parallel", 0, 2),
    Sketcher.Constraint("Equal", 0, 2),
    Sketcher.Constraint("Radius", 1, Q("35 mm")),
    Sketcher.Constraint("Radius", 3, Q("42 mm")),
    Sketcher.Constraint("Angle", 0, Q("60 deg")),
    Sketcher.Constraint("DistanceY", 0, 2, 1, 1, Q("7 mm")),
])
sketch10.setExpression("Constraints[8]", "Params.sketch10_radius")
sketch10.setExpression("Constraints[9]", "Params.sketch10_radius2")
pad9 = body9.newObject("PartDesign::Pad", "Pad008")
pad9.Profile = sketch10
pad9.setExpression("Length", "Params.pad9_length")
pad9.Midplane = True
body10 = doc.addObject("PartDesign::Body", "Body009")

sketch11 = body10.newObject("Sketcher::SketchObject", "Sketch010")
sketch11.AttachmentSupport = (doc.getObject("XY_Plane009"), [""])
sketch11.MapMode = "FlatFace"
sketch11.addGeometry([
    Part.LineSegment(Vector(-32, -27, 0), Vector(-26, -23, 0)),
    Part.ArcOfCircle(Part.Circle(Vector(0, 0, 0), Vector(0, 0, 1), 35), math.radians(-162), math.radians(-138)),
    Part.LineSegment(Vector(-33, -11, 0), Vector(-39, -15, 0)),
    Part.ArcOfCircle(Part.Circle(Vector(0, 0, 0), Vector(0, 0, 1), 42), math.radians(-159.59), math.radians(-140.41)),
], False)
sketch11.addConstraint([
    Sketcher.Constraint("Coincident", 0, 2, 1, 2),
    Sketcher.Constraint("Coincident", 1, 1, 2, 1),
    Sketcher.Constraint("Coincident", 2, 2, 3, 1),
    Sketcher.Constraint("Coincident", 3, 2, 0, 1),
    Sketcher.Constraint("Coincident", 1, 3, -1, 1),
    Sketcher.Constraint("Coincident", 3, 3, -1, 1),
    Sketcher.Constraint("Parallel", 0, 2),
    Sketcher.Constraint("Equal", 0, 2),
    Sketcher.Constraint("Radius", 1, Q("35 mm")),
    Sketcher.Constraint("Radius", 3, Q("42 mm")),
    Sketcher.Constraint("Angle", 0, Q("30 deg")),
    Sketcher.Constraint("DistanceX", 1, 1, 0, 2, Q("7 mm")),
])
sketch11.setExpression("Constraints[8]", "Params.sketch11_radius")
sketch11.setExpression("Constraints[9]", "Params.sketch11_radius2")
pad10 = body10.newObject("PartDesign::Pad", "Pad009")
pad10.Profile = sketch11
pad10.setExpression("Length", "Params.pad10_length")
pad10.Midplane = True
body11 = doc.addObject("PartDesign::Body", "Body010")

sketch12 = body11.newObject("Sketcher::SketchObject", "Sketch011")
sketch12.AttachmentSupport = (doc.getObject("XY_Plane010"), [""])
sketch12.MapMode = "FlatFace"
sketch12.addGeometry([
    Part.LineSegment(Vector(-41, -7, 0), Vector(-34, -7, 0)),
    Part.ArcOfCircle(Part.Circle(Vector(0, 0, 0), Vector(0, 0, 1), 35), math.radians(168), math.radians(192)),
    Part.LineSegment(Vector(-34, 7, 0), Vector(-41, 7, 0)),
    Part.ArcOfCircle(Part.Circle(Vector(0, 0, 0), Vector(0, 0, 1), 42), math.radians(170.41), math.radians(189.59)),
], False)
sketch12.addConstraint([
    Sketcher.Constraint("Coincident", 0, 2, 1, 2),
    Sketcher.Constraint("Coincident", 1, 1, 2, 1),
    Sketcher.Constraint("Coincident", 2, 2, 3, 1),
    Sketcher.Constraint("Coincident", 3, 2, 0, 1),
    Sketcher.Constraint("Horizontal", 0),
    Sketcher.Constraint("Horizontal", 2),
    Sketcher.Constraint("Coincident", 1, 3, -1, 1),
    Sketcher.Constraint("Coincident", 3, 3, -1, 1),
    Sketcher.Constraint("Vertical", 0, 2, 1, 1),
    Sketcher.Constraint("Radius", 1, Q("35 mm")),
    Sketcher.Constraint("Radius", 3, Q("42 mm")),
    Sketcher.Constraint("DistanceY", 0, 2, -1, 1, Q("7 mm")),
])
sketch12.setExpression("Constraints[9]", "Params.sketch12_radius")
sketch12.setExpression("Constraints[10]", "Params.sketch12_radius2")
pad11 = body11.newObject("PartDesign::Pad", "Pad010")
pad11.Profile = sketch12
pad11.setExpression("Length", "Params.pad11_length")
pad11.Midplane = True
body12 = doc.addObject("PartDesign::Body", "Body011")

sketch13 = body12.newObject("Sketcher::SketchObject", "Sketch012")
sketch13.AttachmentSupport = (doc.getObject("XY_Plane011"), [""])
sketch13.MapMode = "FlatFace"
sketch13.addGeometry([
    Part.LineSegment(Vector(-39, 15, 0), Vector(-33, 11, 0)),
    Part.ArcOfCircle(Part.Circle(Vector(0, 0, 0), Vector(0, 0, 1), 35), math.radians(138), math.radians(162)),
    Part.LineSegment(Vector(-26, 23, 0), Vector(-32, 27, 0)),
    Part.ArcOfCircle(Part.Circle(Vector(0, 0, 0), Vector(0, 0, 1), 42), math.radians(140.41), math.radians(159.59)),
], False)
sketch13.addConstraint([
    Sketcher.Constraint("Coincident", 0, 2, 1, 2),
    Sketcher.Constraint("Coincident", 1, 1, 2, 1),
    Sketcher.Constraint("Coincident", 2, 2, 3, 1),
    Sketcher.Constraint("Coincident", 3, 2, 0, 1),
    Sketcher.Constraint("Coincident", 1, 3, -1, 1),
    Sketcher.Constraint("Coincident", 3, 3, -1, 1),
    Sketcher.Constraint("Parallel", 0, 2),
    Sketcher.Constraint("Equal", 0, 2),
    Sketcher.Constraint("Radius", 1, Q("35 mm")),
    Sketcher.Constraint("Radius", 3, Q("42 mm")),
    Sketcher.Constraint("Angle", 0, Q("-30 deg")),
    Sketcher.Constraint("DistanceX", 0, 2, 1, 1, Q("7 mm")),
])
sketch13.setExpression("Constraints[8]", "Params.sketch13_radius")
sketch13.setExpression("Constraints[9]", "Params.sketch13_radius2")
pad12 = body12.newObject("PartDesign::Pad", "Pad011")
pad12.Profile = sketch13
pad12.setExpression("Length", "Params.pad12_length")
pad12.Midplane = True
body13 = doc.addObject("PartDesign::Body", "Body012")

sketch14 = body13.newObject("Sketcher::SketchObject", "Sketch013")
sketch14.AttachmentSupport = (doc.getObject("XY_Plane012"), [""])
sketch14.MapMode = "FlatFace"
sketch14.addGeometry([
    Part.LineSegment(Vector(-27, 32, 0), Vector(-23, 26, 0)),
    Part.ArcOfCircle(Part.Circle(Vector(0, 0, 0), Vector(0, 0, 1), 35), math.radians(108), math.radians(132)),
    Part.LineSegment(Vector(-11, 33, 0), Vector(-15, 39, 0)),
    Part.ArcOfCircle(Part.Circle(Vector(0, 0, 0), Vector(0, 0, 1), 42), math.radians(110.41), math.radians(129.59)),
], False)
sketch14.addConstraint([
    Sketcher.Constraint("Coincident", 0, 2, 1, 2),
    Sketcher.Constraint("Coincident", 1, 1, 2, 1),
    Sketcher.Constraint("Coincident", 2, 2, 3, 1),
    Sketcher.Constraint("Coincident", 3, 2, 0, 1),
    Sketcher.Constraint("Coincident", 1, 3, -1, 1),
    Sketcher.Constraint("Coincident", 3, 3, -1, 1),
    Sketcher.Constraint("Parallel", 0, 2),
    Sketcher.Constraint("Equal", 0, 2),
    Sketcher.Constraint("Radius", 1, Q("35 mm")),
    Sketcher.Constraint("Radius", 3, Q("42 mm")),
    Sketcher.Constraint("Angle", 0, Q("-60 deg")),
    Sketcher.Constraint("DistanceY", 0, 2, 1, 1, Q("7 mm")),
])
sketch14.setExpression("Constraints[8]", "Params.sketch14_radius")
sketch14.setExpression("Constraints[9]", "Params.sketch14_radius2")
pad13 = body13.newObject("PartDesign::Pad", "Pad012")
pad13.Profile = sketch14
pad13.setExpression("Length", "Params.pad13_length")
pad13.Midplane = True

doc.recompute()
